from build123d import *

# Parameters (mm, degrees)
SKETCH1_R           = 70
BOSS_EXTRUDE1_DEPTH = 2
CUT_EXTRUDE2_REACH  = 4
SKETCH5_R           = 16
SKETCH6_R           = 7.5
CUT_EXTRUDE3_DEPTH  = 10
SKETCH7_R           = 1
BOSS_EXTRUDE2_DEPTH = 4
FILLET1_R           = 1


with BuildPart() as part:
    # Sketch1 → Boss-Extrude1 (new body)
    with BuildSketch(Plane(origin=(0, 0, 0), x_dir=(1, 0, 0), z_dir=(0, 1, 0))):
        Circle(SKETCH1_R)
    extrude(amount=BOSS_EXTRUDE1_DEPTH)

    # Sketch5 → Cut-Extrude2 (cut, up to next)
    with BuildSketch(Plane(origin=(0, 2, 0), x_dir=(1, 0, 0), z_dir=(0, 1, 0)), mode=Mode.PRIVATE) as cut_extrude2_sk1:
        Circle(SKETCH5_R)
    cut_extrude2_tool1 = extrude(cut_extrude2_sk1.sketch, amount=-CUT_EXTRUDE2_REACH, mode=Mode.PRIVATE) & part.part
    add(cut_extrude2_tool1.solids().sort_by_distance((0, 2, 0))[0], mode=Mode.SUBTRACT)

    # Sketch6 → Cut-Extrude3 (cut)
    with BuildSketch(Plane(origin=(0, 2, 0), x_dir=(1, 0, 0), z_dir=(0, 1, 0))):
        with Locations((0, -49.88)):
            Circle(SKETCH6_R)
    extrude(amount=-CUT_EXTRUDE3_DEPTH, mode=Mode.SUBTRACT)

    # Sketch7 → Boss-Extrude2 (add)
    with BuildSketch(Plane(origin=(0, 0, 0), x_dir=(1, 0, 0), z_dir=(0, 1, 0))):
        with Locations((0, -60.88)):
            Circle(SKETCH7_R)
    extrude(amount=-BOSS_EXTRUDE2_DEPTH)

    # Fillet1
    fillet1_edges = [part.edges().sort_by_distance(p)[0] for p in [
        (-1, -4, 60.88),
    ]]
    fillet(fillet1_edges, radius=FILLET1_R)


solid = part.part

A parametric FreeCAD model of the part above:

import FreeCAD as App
import Part
import Sketcher
from FreeCAD import Vector
Q = App.Units.Quantity


def edges_at(feature, points):
    """Names of the edges that pass closest to the given points."""
    edges = feature.Shape.Edges
    near = lambda p: min(range(len(edges)), key=lambda i: edges[i].distToShape(Part.Vertex(*p))[0])
    return sorted({f"Edge{near(p) + 1}" for p in points})

doc = App.newDocument("Part")
body = doc.addObject("PartDesign::Body", "Body")

sketch1 = body.newObject("Sketcher::SketchObject", "Sketch")
sketch1.AttachmentSupport = (doc.getObject("XZ_Plane"), [""])
sketch1.MapMode = "FlatFace"
sketch1.addGeometry(Part.Circle(Vector(0, 0, 0), Vector(0, 0, 1), 70), False)
sketch1.addConstraint([
    Sketcher.Constraint("Coincident", 0, 3, -1, 1),
    Sketcher.Constraint("Diameter", 0, Q("140 mm")),
])
pad1 = body.newObject("PartDesign::Pad", "Pad")
pad1.Profile = sketch1
pad1.Length = 2
pad1.Reversed = True

sketch2 = body.newObject("Sketcher::SketchObject", "Sketch001")
sketch2.AttachmentSupport = (doc.getObject("XZ_Plane"), [""])
sketch2.MapMode = "FlatFace"
sketch2.AttachmentOffset = App.Placement(Vector(0, 0, -2), App.Rotation())
sketch2.addGeometry(Part.Circle(Vector(0, 0, 0), Vector(0, 0, 1), 16), False)
sketch2.addConstraint([
    Sketcher.Constraint("Coincident", 0, 3, -1, 1),
    Sketcher.Constraint("Diameter", 0, Q("32 mm")),
])
pocket1 = body.newObject("PartDesign::Pocket", "Pocket")
pocket1.Profile = sketch2
pocket1.Type = "UpToFirst"
pocket1.Reversed = True

sketch3 = body.newObject("Sketcher::SketchObject", "Sketch002")
sketch3.AttachmentSupport = (doc.getObject("XZ_Plane"), [""])
sketch3.MapMode = "FlatFace"
sketch3.AttachmentOffset = App.Placement(Vector(0, 0, -2), App.Rotation())
sketch3.addGeometry(Part.Circle(Vector(0, 50, 0), Vector(0, 0, 1), 8), False)
sketch3.addConstraint([
    Sketcher.Constraint("PointOnObject", 0, 3, -2),
    Sketcher.Constraint("Diameter", 0, Q("15 mm")),
    Sketcher.Constraint("DistanceY", -1, 1, 0, 3, Q("49.88 mm")),
])
pocket2 = body.newObject("PartDesign::Pocket", "Pocket001")
pocket2.Profile = sketch3
pocket2.Length = 10
pocket2.Reversed = True

sketch4 = body.newObject("Sketcher::SketchObject", "Sketch003")
sketch4.AttachmentSupport = (doc.getObject("XZ_Plane"), [""])
sketch4.MapMode = "FlatFace"
sketch4.addGeometry(Part.Circle(Vector(0, 60.9, 0), Vector(0, 0, 1), 1), False)
sketch4.addConstraint([
    Sketcher.Constraint("PointOnObject", 0, 3, -2),
    Sketcher.Constraint("Diameter", 0, Q("2 mm")),
    Sketcher.Constraint("DistanceY", -1, 1, 0, 3, Q("60.88 mm")),
])
pad2 = body.newObject("PartDesign::Pad", "Pad001")
pad2.Profile = sketch4
pad2.Length = 4
doc.recompute()

fillet = body.newObject("PartDesign::Fillet", "Fillet")
fillet.Base = (pad2, edges_at(pad2, [(-1, -4, 60.88)]))
fillet.Radius = 1

doc.recompute()
